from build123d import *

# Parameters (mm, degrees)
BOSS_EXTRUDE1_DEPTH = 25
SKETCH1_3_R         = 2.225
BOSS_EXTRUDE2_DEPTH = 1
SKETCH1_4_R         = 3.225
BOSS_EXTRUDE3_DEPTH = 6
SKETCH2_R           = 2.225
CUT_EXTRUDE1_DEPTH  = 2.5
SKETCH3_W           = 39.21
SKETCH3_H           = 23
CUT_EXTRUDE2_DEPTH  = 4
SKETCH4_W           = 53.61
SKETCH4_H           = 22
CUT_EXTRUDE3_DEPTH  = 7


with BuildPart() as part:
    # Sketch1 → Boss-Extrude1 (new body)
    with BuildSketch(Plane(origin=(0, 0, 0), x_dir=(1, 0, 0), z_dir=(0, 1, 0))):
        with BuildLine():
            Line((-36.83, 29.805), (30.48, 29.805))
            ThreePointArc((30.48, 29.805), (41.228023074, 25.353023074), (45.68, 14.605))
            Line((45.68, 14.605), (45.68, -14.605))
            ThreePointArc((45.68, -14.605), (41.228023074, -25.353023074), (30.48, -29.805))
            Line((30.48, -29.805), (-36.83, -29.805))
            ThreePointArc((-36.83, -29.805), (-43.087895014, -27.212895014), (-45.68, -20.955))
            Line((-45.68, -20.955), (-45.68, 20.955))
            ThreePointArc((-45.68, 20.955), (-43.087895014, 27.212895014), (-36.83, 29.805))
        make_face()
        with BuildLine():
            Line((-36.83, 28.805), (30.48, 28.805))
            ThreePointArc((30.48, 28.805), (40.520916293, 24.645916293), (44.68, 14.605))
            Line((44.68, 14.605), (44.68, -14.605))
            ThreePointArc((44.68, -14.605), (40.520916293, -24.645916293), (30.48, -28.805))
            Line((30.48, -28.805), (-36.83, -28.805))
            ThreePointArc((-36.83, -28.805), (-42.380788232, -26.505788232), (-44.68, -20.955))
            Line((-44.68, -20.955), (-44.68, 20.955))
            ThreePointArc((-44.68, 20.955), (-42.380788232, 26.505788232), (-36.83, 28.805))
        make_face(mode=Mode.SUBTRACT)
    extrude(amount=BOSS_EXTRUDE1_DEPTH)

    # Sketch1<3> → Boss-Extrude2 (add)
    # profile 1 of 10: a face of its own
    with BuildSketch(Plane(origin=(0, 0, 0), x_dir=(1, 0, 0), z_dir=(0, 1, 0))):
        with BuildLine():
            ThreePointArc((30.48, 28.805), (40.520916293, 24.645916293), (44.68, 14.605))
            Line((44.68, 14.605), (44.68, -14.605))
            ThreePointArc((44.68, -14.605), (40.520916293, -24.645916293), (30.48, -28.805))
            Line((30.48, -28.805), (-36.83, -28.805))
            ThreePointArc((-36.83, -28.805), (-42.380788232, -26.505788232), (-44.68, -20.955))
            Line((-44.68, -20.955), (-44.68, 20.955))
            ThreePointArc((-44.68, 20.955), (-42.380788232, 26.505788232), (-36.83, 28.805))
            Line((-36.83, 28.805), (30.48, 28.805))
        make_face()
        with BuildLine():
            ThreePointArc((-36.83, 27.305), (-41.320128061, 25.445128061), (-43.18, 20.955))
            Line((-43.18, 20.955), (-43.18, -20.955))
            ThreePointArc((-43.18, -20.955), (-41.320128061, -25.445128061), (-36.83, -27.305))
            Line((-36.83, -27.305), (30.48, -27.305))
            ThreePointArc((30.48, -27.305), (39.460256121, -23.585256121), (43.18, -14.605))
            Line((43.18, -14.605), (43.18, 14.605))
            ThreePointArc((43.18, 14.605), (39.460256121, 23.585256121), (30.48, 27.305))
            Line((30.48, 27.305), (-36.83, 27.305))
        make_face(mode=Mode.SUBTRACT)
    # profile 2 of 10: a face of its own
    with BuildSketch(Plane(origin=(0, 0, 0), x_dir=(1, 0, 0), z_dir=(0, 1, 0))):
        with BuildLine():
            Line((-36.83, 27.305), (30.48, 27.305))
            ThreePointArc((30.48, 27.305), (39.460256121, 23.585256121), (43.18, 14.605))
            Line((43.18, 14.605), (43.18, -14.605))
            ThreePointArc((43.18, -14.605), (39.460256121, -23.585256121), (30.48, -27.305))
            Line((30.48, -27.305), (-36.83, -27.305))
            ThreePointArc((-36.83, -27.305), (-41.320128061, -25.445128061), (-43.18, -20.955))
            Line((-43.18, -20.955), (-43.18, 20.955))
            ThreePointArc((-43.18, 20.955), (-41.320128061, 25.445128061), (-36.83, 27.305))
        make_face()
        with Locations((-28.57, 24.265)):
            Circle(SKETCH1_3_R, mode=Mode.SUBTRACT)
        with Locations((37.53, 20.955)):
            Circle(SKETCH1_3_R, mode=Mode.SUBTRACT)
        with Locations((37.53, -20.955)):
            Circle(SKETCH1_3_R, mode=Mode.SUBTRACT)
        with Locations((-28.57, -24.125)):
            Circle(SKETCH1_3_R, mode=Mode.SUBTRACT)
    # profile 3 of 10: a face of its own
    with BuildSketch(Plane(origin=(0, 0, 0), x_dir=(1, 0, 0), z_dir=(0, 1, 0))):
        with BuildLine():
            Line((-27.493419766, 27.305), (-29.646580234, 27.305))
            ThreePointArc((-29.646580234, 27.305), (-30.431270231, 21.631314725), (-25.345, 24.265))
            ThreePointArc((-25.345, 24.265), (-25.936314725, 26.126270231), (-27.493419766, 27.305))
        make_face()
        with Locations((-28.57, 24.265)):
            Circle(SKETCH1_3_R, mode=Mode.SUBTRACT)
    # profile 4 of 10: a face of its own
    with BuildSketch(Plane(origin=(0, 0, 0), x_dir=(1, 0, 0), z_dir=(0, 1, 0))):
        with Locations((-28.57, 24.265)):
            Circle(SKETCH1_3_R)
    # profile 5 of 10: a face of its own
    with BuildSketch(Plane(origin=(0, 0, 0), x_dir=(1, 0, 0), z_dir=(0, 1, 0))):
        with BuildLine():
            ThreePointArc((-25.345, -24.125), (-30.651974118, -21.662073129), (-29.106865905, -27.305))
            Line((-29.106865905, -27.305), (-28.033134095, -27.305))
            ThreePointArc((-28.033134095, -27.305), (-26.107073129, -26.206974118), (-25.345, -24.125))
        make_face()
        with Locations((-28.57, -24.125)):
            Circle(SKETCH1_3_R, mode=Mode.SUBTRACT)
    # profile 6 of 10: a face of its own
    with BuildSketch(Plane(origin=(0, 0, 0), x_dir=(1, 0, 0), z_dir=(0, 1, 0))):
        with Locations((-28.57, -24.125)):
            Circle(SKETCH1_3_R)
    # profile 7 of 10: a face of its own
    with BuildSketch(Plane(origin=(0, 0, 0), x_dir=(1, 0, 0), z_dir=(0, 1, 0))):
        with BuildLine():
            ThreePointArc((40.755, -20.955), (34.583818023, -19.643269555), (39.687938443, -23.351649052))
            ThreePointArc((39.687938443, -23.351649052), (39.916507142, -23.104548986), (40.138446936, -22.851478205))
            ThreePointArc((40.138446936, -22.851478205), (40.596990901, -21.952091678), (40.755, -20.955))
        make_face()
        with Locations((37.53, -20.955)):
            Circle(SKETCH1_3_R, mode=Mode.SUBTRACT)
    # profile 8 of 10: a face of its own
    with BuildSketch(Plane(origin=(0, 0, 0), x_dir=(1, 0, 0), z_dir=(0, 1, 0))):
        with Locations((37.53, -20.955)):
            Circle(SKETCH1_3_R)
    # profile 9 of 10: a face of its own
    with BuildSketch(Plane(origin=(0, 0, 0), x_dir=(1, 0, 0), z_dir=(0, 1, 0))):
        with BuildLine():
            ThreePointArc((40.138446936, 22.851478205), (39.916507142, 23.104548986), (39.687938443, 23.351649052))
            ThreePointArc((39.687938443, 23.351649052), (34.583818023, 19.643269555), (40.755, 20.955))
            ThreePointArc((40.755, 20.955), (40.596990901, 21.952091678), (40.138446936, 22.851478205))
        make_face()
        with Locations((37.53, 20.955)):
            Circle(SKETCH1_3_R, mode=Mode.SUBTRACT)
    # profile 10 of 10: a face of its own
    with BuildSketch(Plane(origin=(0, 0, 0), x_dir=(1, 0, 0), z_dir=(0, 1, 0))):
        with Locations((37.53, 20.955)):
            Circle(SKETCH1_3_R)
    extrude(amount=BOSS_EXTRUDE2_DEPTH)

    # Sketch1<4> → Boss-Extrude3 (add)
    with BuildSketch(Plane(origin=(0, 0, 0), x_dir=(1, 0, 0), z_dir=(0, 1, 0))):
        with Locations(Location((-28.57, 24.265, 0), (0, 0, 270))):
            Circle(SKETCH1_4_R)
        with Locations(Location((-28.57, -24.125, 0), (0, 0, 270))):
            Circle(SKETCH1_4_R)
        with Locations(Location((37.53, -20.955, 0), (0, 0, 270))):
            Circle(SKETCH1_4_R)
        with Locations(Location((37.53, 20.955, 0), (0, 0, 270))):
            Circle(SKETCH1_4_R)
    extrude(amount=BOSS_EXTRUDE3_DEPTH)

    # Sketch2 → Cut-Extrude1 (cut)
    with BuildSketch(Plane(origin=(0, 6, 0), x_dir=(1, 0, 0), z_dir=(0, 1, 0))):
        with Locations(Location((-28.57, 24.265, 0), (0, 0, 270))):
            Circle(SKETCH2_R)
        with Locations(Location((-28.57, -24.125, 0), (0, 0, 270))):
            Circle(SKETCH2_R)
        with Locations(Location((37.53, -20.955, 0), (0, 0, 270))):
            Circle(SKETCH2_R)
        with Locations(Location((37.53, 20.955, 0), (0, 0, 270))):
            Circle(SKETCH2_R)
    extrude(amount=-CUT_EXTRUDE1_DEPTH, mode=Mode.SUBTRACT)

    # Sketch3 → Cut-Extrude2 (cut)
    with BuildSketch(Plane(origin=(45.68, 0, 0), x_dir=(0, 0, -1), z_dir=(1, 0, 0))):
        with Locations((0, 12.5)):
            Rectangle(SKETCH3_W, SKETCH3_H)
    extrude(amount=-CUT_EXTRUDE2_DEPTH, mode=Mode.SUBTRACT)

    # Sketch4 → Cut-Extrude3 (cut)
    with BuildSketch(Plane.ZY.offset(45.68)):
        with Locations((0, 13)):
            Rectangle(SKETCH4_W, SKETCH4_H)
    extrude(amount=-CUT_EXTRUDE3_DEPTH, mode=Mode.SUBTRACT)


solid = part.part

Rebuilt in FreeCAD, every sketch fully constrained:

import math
import FreeCAD as App
import Part
import Sketcher
Q = App.Units.Quantity


def add_polygon(sketch, points):
    """Adds a closed chain of lines whose ends are joined by coincident constraints."""
    first, n = sketch.GeometryCount, len(points)
    for a, b in zip(points, points[1:] + points[:1]):
        sketch.addGeometry(Part.LineSegment(App.Vector(*a, 0), App.Vector(*b, 0)), False)
    for i in range(n):
        sketch.addConstraint(Sketcher.Constraint("Coincident", first + i, 2, first + (i + 1) % n, 1))

doc = App.newDocument("Part")
params = doc.addObject("Spreadsheet::Sheet", "Params")
for row, (alias, value) in enumerate([
    ("sketch1_radius", "15.2 mm"),
    ("sketch1_radius2", "14.2 mm"),
    ("sketch1_radius3", "8.85 mm"),
    ("sketch1_width", "67.31 mm"),
    ("sketch1_height", "41.91 mm"),
    ("pad1_length", "25 mm"),
    ("sketch2_radius", "14.2 mm"),
    ("sketch2_radius2", "7.85 mm"),
    ("sketch2_width", "67.31 mm"),
    ("sketch2_height", "41.91 mm"),
    ("pad2_length", "1 mm"),
    ("sketch3_diameter", "6.45 mm"),
    ("pad3_length", "6 mm"),
    ("sketch4_diameter", "4.45 mm"),
    ("pocket1_length", "2.5 mm"),
    ("sketch5_width", "23 mm"),
    ("sketch5_height", "39.21 mm"),
    ("pocket2_length", "4 mm"),
    ("sketch6_width", "22 mm"),
    ("sketch6_height", "53.61 mm"),
    ("pocket3_length", "7 mm"),
], start=1):
    params.set(f"A{row}", alias)
    params.set(f"B{row}", "=" + value)
    params.setAlias(f"B{row}", alias)

body = doc.addObject("PartDesign::Body", "Body")

sketch1 = doc.addObject("Sketcher::SketchObject", "Sketch")
body.addObject(sketch1)
sketch1.AttachmentSupport = (doc.XZ_Plane, [""])
sketch1.MapMode = "FlatFace"
sketch1.addGeometry([
    Part.LineSegment(App.Vector(30, -30, 0), App.Vector(-37, -30, 0)),
    Part.ArcOfCircle(Part.Circle(App.Vector(-37, -21, 0), App.Vector(0, 0, 1), 9), math.radians(180), math.radians(270)),
    Part.LineSegment(App.Vector(-46, -21, 0), App.Vector(-46, 21, 0)),
    Part.ArcOfCircle(Part.Circle(App.Vector(-37, 21, 0), App.Vector(0, 0, 1), 9), math.radians(90), math.radians(180)),
    Part.LineSegment(App.Vector(-37, 30, 0), App.Vector(30, 30, 0)),
    Part.ArcOfCircle(Part.Circle(App.Vector(30, 15, 0), App.Vector(0, 0, 1), 15), math.radians(0), math.radians(90)),
    Part.LineSegment(App.Vector(46, 15, 0), App.Vector(46, -15, 0)),
    Part.ArcOfCircle(Part.Circle(App.Vector(30, -15, 0), App.Vector(0, 0, 1), 15), math.radians(-90), math.radians(0)),
    Part.LineSegment(App.Vector(-37, -29, 0), App.Vector(30, -29, 0)),
    Part.ArcOfCircle(Part.Circle(App.Vector(30, -15, 0), App.Vector(0, 0, 1), 14), math.radians(-90), math.radians(0)),
    Part.LineSegment(App.Vector(45, -15, 0), App.Vector(45, 15, 0)),
    Part.ArcOfCircle(Part.Circle(App.Vector(30, 15, 0), App.Vector(0, 0, 1), 14), math.radians(0), math.radians(90)),
    Part.LineSegment(App.Vector(30, 29, 0), App.Vector(-37, 29, 0)),
    Part.ArcOfCircle(Part.Circle(App.Vector(-37, 21, 0), App.Vector(0, 0, 1), 8), math.radians(90), math.radians(180)),
    Part.LineSegment(App.Vector(-45, 21, 0), App.Vector(-45, -21, 0)),
    Part.ArcOfCircle(Part.Circle(App.Vector(-37, -21, 0), App.Vector(0, 0, 1), 8), math.radians(-180), math.radians(-90)),
], False)
sketch1.addConstraint([
    Sketcher.Constraint("Tangent", 0, 2, 1, 2),
    Sketcher.Constraint("Tangent", 1, 1, 2, 1),
    Sketcher.Constraint("Tangent", 2, 2, 3, 2),
    Sketcher.Constraint("Tangent", 3, 1, 4, 1),
    Sketcher.Constraint("Tangent", 4, 2, 5, 2),
    Sketcher.Constraint("Tangent", 5, 1, 6, 1),
    Sketcher.Constraint("Tangent", 6, 2, 7, 2),
    Sketcher.Constraint("Tangent", 7, 1, 0, 1),
    Sketcher.Constraint("Tangent", 8, 2, 9, 1),
    Sketcher.Constraint("Tangent", 9, 2, 10, 1),
    Sketcher.Constraint("Tangent", 10, 2, 11, 1),
    Sketcher.Constraint("Tangent", 11, 2, 12, 1),
    Sketcher.Constraint("Tangent", 12, 2, 13, 1),
    Sketcher.Constraint("Tangent", 13, 2, 14, 1),
    Sketcher.Constraint("Tangent", 14, 2, 15, 1),
    Sketcher.Constraint("Tangent", 15, 2, 8, 1),
    Sketcher.Constraint("Horizontal", 0),
    Sketcher.Constraint("Vertical", 2),
    Sketcher.Constraint("Horizontal", 4),
    Sketcher.Constraint("Vertical", 6),
    Sketcher.Constraint("Horizontal", 8),
    Sketcher.Constraint("Vertical", 10),
    Sketcher.Constraint("Horizontal", 12),
    Sketcher.Constraint("Vertical", 14),
    Sketcher.Constraint("Coincident", 9, 3, 7, 3),
    Sketcher.Constraint("Coincident", 11, 3, 5, 3),
    Sketcher.Constraint("Coincident", 13, 3, 3, 3),
    Sketcher.Constraint("Equal", 1, 3),
    Sketcher.Constraint("Equal", 5, 7),
    Sketcher.Constraint("Equal", 13, 15),
    Sketcher.Constraint("Radius", 5, Q("15.2 mm")),
    Sketcher.Constraint("Radius", 9, Q("14.2 mm")),
    Sketcher.Constraint("Radius", 1, Q("8.85 mm")),
    Sketcher.Constraint("DistanceX", 0, 2, 0, 1, Q("67.31 mm")),
    Sketcher.Constraint("DistanceY", 2, 1, 2, 2, Q("41.91 mm")),
    Sketcher.Constraint("DistanceX", 1, 3, -1, 1, Q("36.83 mm")),
    Sketcher.Constraint("DistanceY", 1, 3, -1, 1, Q("20.955 mm")),
])
sketch1.setExpression("Constraints[30]", "Params.sketch1_radius")
sketch1.setExpression("Constraints[31]", "Params.sketch1_radius2")
sketch1.setExpression("Constraints[32]", "Params.sketch1_radius3")
sketch1.setExpression("Constraints[33]", "Params.sketch1_width")
sketch1.setExpression("Constraints[34]", "Params.sketch1_height")
pad1 = doc.addObject("PartDesign::Pad", "Pad")
body.addObject(pad1)
pad1.Profile = sketch1
pad1.setExpression("Length", "Params.pad1_length")
pad1.Reversed = True

sketch2 = doc.addObject("Sketcher::SketchObject", "Sketch001")
body.addObject(sketch2)
sketch2.AttachmentSupport = (doc.XZ_Plane, [""])
sketch2.MapMode = "FlatFace"
sketch2.addGeometry([
    Part.ArcOfCircle(Part.Circle(App.Vector(30, -15, 0), App.Vector(0, 0, 1), 14), math.radians(-90), math.radians(0)),
    Part.LineSegment(App.Vector(30, -29, 0), App.Vector(-37, -29, 0)),
    Part.ArcOfCircle(Part.Circle(App.Vector(-37, -21, 0), App.Vector(0, 0, 1), 8), math.radians(-180), math.radians(-90)),
    Part.LineSegment(App.Vector(-45, -21, 0), App.Vector(-45, 21, 0)),
    Part.ArcOfCircle(Part.Circle(App.Vector(-37, 21, 0), App.Vector(0, 0, 1), 8), math.radians(90), math.radians(180)),
    Part.LineSegment(App.Vector(-37, 29, 0), App.Vector(30, 29, 0)),
    Part.ArcOfCircle(Part.Circle(App.Vector(30, 15, 0), App.Vector(0, 0, 1), 14), math.radians(0), math.radians(90)),
    Part.LineSegment(App.Vector(45, 15, 0), App.Vector(45, -15, 0)),
], False)
sketch2.addConstraint([
    Sketcher.Constraint("Tangent", 0, 1, 1, 1),
    Sketcher.Constraint("Tangent", 1, 2, 2, 2),
    Sketcher.Constraint("Tangent", 2, 1, 3, 1),
    Sketcher.Constraint("Tangent", 3, 2, 4, 2),
    Sketcher.Constraint("Tangent", 4, 1, 5, 1),
    Sketcher.Constraint("Tangent", 5, 2, 6, 2),
    Sketcher.Constraint("Tangent", 6, 1, 7, 1),
    Sketcher.Constraint("Tangent", 7, 2, 0, 2),
    Sketcher.Constraint("Horizontal", 1),
    Sketcher.Constraint("Vertical", 3),
    Sketcher.Constraint("Horizontal", 5),
    Sketcher.Constraint("Vertical", 7),
    Sketcher.Constraint("Equal", 2, 4),
    Sketcher.Constraint("Equal", 0, 6),
    Sketcher.Constraint("Radius", 0, Q("14.2 mm")),
    Sketcher.Constraint("Radius", 2, Q("7.85 mm")),
    Sketcher.Constraint("DistanceX", 1, 2, 1, 1, Q("67.31 mm")),
    Sketcher.Constraint("DistanceY", 3, 1, 3, 2, Q("41.91 mm")),
    Sketcher.Constraint("DistanceX", -1, 1, 0, 3, Q("30.48 mm")),
    Sketcher.Constraint("DistanceY", 0, 3, -1, 1, Q("14.605 mm")),
])
sketch2.setExpression("Constraints[14]", "Params.sketch2_radius")
sketch2.setExpression("Constraints[15]", "Params.sketch2_radius2")
sketch2.setExpression("Constraints[16]", "Params.sketch2_width")
sketch2.setExpression("Constraints[17]", "Params.sketch2_height")
pad2 = doc.addObject("PartDesign::Pad", "Pad001")
body.addObject(pad2)
pad2.Profile = sketch2
pad2.setExpression("Length", "Params.pad2_length")
pad2.Reversed = True

sketch3 = doc.addObject("Sketcher::SketchObject", "Sketch002")
body.addObject(sketch3)
sketch3.AttachmentSupport = (doc.XZ_Plane, [""])
sketch3.MapMode = "FlatFace"
sketch3.addGeometry([
    Part.Circle(App.Vector(-28.6, -24.3, 0), App.Vector(0, 0, 1), 3.2),
    Part.Circle(App.Vector(-28.6, 24.1, 0), App.Vector(0, 0, 1), 3.2),
    Part.Circle(App.Vector(37.5, 21, 0), App.Vector(0, 0, 1), 3.2),
    Part.Circle(App.Vector(37.5, -21, 0), App.Vector(0, 0, 1), 3.2),
], False)
sketch3.addConstraint([
    Sketcher.Constraint("Equal", 0, 1),
    Sketcher.Constraint("Equal", 1, 2),
    Sketcher.Constraint("Equal", 2, 3),
    Sketcher.Constraint("Symmetric", 2, 3, 3, 3, -1),
    Sketcher.Constraint("Vertical", 0, 3, 1, 3),
    Sketcher.Constraint("Diameter", 0, Q("6.45 mm")),
    Sketcher.Constraint("DistanceX", 1, 3, 2, 3, Q("66.1 mm")),
    Sketcher.Constraint("DistanceX", 0, 3, -1, 1, Q("28.57 mm")),
    Sketcher.Constraint("DistanceY", 0, 3, 1, 3, Q("48.39 mm")),
    Sketcher.Constraint("DistanceY", 2, 3, 1, 3, Q("3.17 mm")),
    Sketcher.Constraint("DistanceY", 3, 3, 2, 3, Q("41.91 mm")),
])
sketch3.setExpression("Constraints[5]", "Params.sketch3_diameter")
pad3 = doc.addObject("PartDesign::Pad", "Pad002")
body.addObject(pad3)
pad3.Profile = sketch3
pad3.setExpression("Length", "Params.pad3_length")
pad3.Reversed = True

sketch4 = doc.addObject("Sketcher::SketchObject", "Sketch003")
body.addObject(sketch4)
sketch4.AttachmentSupport = (doc.XZ_Plane, [""])
sketch4.MapMode = "FlatFace"
sketch4.AttachmentOffset = App.Placement(App.Vector(0, 0, -6), App.Rotation())
sketch4.addGeometry([
    Part.Circle(App.Vector(-28.6, -24.3, 0), App.Vector(0, 0, 1), 2.2),
    Part.Circle(App.Vector(-28.6, 24.1, 0), App.Vector(0, 0, 1), 2.2),
    Part.Circle(App.Vector(37.5, 21, 0), App.Vector(0, 0, 1), 2.2),
    Part.Circle(App.Vector(37.5, -21, 0), App.Vector(0, 0, 1), 2.2),
], False)
sketch4.addConstraint([
    Sketcher.Constraint("Equal", 0, 1),
    Sketcher.Constraint("Equal", 1, 2),
    Sketcher.Constraint("Equal", 2, 3),
    Sketcher.Constraint("Symmetric", 2, 3, 3, 3, -1),
    Sketcher.Constraint("Vertical", 0, 3, 1, 3),
    Sketcher.Constraint("Diameter", 0, Q("4.45 mm")),
    Sketcher.Constraint("DistanceX", 1, 3, 2, 3, Q("66.1 mm")),
    Sketcher.Constraint("DistanceX", 0, 3, -1, 1, Q("28.57 mm")),
    Sketcher.Constraint("DistanceY", 0, 3, 1, 3, Q("48.39 mm")),
    Sketcher.Constraint("DistanceY", 2, 3, 1, 3, Q("3.17 mm")),
    Sketcher.Constraint("DistanceY", 3, 3, 2, 3, Q("41.91 mm")),
])
sketch4.setExpression("Constraints[5]", "Params.sketch4_diameter")
pocket1 = doc.addObject("PartDesign::Pocket", "Pocket")
body.addObject(pocket1)
pocket1.Profile = sketch4
pocket1.setExpression("Length", "Params.pocket1_length")
pocket1.Reversed = True

sketch5 = doc.addObject("Sketcher::SketchObject", "Sketch004")
body.addObject(sketch5)
sketch5.AttachmentSupport = (doc.YZ_Plane, [""])
sketch5.MapMode = "FlatFace"
sketch5.AttachmentOffset = App.Placement(App.Vector(0, 0, 45.68), App.Rotation())
add_polygon(sketch5, [(24, 20), (1, 20), (1, -20), (24, -20)])
sketch5.addConstraint([
    Sketcher.Constraint("Horizontal", 0),
    Sketcher.Constraint("Vertical", 1),
    Sketcher.Constraint("Horizontal", 2),
    Sketcher.Constraint("Vertical", 3),
    Sketcher.Constraint("DistanceX", 0, 2, 0, 1, Q("23 mm")),
    Sketcher.Constraint("DistanceX", -1, 1, 0, 2, Q("1 mm")),
    Sketcher.Constraint("DistanceY", 1, 2, 1, 1, Q("39.21 mm")),
    Sketcher.Constraint("DistanceY", -1, 1, 0, 2, Q("19.605 mm")),
])
sketch5.setExpression("Constraints[8]", "Params.sketch5_width")
sketch5.setExpression("Constraints[10]", "Params.sketch5_height")
pocket2 = doc.addObject("PartDesign::Pocket", "Pocket001")
body.addObject(pocket2)
pocket2.Profile = sketch5
pocket2.setExpression("Length", "Params.pocket2_length")

sketch6 = doc.addObject("Sketcher::SketchObject", "Sketch005")
body.addObject(sketch6)
sketch6.AttachmentSupport = (doc.YZ_Plane, [""])
sketch6.MapMode = "FlatFace"
sketch6.AttachmentOffset = App.Placement(App.Vector(0, 0, -45.68), App.Rotation())
add_polygon(sketch6, [(24, -27), (2, -27), (2, 27), (24, 27)])
sketch6.addConstraint([
    Sketcher.Constraint("Horizontal", 0),
    Sketcher.Constraint("Vertical", 1),
    Sketcher.Constraint("Horizontal", 2),
    Sketcher.Constraint("Vertical", 3),
    Sketcher.Constraint("DistanceX", 0, 2, 0, 1, Q("22 mm")),
    Sketcher.Constraint("DistanceX", -1, 1, 0, 2, Q("2 mm")),
    Sketcher.Constraint("DistanceY", 1, 1, 1, 2, Q("53.61 mm")),
    Sketcher.Constraint("DistanceY", 0, 2, -1, 1, Q("26.805 mm")),
])
sketch6.setExpression("Constraints[8]", "Params.sketch6_width")
sketch6.setExpression("Constraints[10]", "Params.sketch6_height")
pocket3 = doc.addObject("PartDesign::Pocket", "Pocket002")
body.addObject(pocket3)
pocket3.Profile = sketch6
pocket3.setExpression("Length", "Params.pocket3_length")
pocket3.Reversed = True

doc.recompute()
